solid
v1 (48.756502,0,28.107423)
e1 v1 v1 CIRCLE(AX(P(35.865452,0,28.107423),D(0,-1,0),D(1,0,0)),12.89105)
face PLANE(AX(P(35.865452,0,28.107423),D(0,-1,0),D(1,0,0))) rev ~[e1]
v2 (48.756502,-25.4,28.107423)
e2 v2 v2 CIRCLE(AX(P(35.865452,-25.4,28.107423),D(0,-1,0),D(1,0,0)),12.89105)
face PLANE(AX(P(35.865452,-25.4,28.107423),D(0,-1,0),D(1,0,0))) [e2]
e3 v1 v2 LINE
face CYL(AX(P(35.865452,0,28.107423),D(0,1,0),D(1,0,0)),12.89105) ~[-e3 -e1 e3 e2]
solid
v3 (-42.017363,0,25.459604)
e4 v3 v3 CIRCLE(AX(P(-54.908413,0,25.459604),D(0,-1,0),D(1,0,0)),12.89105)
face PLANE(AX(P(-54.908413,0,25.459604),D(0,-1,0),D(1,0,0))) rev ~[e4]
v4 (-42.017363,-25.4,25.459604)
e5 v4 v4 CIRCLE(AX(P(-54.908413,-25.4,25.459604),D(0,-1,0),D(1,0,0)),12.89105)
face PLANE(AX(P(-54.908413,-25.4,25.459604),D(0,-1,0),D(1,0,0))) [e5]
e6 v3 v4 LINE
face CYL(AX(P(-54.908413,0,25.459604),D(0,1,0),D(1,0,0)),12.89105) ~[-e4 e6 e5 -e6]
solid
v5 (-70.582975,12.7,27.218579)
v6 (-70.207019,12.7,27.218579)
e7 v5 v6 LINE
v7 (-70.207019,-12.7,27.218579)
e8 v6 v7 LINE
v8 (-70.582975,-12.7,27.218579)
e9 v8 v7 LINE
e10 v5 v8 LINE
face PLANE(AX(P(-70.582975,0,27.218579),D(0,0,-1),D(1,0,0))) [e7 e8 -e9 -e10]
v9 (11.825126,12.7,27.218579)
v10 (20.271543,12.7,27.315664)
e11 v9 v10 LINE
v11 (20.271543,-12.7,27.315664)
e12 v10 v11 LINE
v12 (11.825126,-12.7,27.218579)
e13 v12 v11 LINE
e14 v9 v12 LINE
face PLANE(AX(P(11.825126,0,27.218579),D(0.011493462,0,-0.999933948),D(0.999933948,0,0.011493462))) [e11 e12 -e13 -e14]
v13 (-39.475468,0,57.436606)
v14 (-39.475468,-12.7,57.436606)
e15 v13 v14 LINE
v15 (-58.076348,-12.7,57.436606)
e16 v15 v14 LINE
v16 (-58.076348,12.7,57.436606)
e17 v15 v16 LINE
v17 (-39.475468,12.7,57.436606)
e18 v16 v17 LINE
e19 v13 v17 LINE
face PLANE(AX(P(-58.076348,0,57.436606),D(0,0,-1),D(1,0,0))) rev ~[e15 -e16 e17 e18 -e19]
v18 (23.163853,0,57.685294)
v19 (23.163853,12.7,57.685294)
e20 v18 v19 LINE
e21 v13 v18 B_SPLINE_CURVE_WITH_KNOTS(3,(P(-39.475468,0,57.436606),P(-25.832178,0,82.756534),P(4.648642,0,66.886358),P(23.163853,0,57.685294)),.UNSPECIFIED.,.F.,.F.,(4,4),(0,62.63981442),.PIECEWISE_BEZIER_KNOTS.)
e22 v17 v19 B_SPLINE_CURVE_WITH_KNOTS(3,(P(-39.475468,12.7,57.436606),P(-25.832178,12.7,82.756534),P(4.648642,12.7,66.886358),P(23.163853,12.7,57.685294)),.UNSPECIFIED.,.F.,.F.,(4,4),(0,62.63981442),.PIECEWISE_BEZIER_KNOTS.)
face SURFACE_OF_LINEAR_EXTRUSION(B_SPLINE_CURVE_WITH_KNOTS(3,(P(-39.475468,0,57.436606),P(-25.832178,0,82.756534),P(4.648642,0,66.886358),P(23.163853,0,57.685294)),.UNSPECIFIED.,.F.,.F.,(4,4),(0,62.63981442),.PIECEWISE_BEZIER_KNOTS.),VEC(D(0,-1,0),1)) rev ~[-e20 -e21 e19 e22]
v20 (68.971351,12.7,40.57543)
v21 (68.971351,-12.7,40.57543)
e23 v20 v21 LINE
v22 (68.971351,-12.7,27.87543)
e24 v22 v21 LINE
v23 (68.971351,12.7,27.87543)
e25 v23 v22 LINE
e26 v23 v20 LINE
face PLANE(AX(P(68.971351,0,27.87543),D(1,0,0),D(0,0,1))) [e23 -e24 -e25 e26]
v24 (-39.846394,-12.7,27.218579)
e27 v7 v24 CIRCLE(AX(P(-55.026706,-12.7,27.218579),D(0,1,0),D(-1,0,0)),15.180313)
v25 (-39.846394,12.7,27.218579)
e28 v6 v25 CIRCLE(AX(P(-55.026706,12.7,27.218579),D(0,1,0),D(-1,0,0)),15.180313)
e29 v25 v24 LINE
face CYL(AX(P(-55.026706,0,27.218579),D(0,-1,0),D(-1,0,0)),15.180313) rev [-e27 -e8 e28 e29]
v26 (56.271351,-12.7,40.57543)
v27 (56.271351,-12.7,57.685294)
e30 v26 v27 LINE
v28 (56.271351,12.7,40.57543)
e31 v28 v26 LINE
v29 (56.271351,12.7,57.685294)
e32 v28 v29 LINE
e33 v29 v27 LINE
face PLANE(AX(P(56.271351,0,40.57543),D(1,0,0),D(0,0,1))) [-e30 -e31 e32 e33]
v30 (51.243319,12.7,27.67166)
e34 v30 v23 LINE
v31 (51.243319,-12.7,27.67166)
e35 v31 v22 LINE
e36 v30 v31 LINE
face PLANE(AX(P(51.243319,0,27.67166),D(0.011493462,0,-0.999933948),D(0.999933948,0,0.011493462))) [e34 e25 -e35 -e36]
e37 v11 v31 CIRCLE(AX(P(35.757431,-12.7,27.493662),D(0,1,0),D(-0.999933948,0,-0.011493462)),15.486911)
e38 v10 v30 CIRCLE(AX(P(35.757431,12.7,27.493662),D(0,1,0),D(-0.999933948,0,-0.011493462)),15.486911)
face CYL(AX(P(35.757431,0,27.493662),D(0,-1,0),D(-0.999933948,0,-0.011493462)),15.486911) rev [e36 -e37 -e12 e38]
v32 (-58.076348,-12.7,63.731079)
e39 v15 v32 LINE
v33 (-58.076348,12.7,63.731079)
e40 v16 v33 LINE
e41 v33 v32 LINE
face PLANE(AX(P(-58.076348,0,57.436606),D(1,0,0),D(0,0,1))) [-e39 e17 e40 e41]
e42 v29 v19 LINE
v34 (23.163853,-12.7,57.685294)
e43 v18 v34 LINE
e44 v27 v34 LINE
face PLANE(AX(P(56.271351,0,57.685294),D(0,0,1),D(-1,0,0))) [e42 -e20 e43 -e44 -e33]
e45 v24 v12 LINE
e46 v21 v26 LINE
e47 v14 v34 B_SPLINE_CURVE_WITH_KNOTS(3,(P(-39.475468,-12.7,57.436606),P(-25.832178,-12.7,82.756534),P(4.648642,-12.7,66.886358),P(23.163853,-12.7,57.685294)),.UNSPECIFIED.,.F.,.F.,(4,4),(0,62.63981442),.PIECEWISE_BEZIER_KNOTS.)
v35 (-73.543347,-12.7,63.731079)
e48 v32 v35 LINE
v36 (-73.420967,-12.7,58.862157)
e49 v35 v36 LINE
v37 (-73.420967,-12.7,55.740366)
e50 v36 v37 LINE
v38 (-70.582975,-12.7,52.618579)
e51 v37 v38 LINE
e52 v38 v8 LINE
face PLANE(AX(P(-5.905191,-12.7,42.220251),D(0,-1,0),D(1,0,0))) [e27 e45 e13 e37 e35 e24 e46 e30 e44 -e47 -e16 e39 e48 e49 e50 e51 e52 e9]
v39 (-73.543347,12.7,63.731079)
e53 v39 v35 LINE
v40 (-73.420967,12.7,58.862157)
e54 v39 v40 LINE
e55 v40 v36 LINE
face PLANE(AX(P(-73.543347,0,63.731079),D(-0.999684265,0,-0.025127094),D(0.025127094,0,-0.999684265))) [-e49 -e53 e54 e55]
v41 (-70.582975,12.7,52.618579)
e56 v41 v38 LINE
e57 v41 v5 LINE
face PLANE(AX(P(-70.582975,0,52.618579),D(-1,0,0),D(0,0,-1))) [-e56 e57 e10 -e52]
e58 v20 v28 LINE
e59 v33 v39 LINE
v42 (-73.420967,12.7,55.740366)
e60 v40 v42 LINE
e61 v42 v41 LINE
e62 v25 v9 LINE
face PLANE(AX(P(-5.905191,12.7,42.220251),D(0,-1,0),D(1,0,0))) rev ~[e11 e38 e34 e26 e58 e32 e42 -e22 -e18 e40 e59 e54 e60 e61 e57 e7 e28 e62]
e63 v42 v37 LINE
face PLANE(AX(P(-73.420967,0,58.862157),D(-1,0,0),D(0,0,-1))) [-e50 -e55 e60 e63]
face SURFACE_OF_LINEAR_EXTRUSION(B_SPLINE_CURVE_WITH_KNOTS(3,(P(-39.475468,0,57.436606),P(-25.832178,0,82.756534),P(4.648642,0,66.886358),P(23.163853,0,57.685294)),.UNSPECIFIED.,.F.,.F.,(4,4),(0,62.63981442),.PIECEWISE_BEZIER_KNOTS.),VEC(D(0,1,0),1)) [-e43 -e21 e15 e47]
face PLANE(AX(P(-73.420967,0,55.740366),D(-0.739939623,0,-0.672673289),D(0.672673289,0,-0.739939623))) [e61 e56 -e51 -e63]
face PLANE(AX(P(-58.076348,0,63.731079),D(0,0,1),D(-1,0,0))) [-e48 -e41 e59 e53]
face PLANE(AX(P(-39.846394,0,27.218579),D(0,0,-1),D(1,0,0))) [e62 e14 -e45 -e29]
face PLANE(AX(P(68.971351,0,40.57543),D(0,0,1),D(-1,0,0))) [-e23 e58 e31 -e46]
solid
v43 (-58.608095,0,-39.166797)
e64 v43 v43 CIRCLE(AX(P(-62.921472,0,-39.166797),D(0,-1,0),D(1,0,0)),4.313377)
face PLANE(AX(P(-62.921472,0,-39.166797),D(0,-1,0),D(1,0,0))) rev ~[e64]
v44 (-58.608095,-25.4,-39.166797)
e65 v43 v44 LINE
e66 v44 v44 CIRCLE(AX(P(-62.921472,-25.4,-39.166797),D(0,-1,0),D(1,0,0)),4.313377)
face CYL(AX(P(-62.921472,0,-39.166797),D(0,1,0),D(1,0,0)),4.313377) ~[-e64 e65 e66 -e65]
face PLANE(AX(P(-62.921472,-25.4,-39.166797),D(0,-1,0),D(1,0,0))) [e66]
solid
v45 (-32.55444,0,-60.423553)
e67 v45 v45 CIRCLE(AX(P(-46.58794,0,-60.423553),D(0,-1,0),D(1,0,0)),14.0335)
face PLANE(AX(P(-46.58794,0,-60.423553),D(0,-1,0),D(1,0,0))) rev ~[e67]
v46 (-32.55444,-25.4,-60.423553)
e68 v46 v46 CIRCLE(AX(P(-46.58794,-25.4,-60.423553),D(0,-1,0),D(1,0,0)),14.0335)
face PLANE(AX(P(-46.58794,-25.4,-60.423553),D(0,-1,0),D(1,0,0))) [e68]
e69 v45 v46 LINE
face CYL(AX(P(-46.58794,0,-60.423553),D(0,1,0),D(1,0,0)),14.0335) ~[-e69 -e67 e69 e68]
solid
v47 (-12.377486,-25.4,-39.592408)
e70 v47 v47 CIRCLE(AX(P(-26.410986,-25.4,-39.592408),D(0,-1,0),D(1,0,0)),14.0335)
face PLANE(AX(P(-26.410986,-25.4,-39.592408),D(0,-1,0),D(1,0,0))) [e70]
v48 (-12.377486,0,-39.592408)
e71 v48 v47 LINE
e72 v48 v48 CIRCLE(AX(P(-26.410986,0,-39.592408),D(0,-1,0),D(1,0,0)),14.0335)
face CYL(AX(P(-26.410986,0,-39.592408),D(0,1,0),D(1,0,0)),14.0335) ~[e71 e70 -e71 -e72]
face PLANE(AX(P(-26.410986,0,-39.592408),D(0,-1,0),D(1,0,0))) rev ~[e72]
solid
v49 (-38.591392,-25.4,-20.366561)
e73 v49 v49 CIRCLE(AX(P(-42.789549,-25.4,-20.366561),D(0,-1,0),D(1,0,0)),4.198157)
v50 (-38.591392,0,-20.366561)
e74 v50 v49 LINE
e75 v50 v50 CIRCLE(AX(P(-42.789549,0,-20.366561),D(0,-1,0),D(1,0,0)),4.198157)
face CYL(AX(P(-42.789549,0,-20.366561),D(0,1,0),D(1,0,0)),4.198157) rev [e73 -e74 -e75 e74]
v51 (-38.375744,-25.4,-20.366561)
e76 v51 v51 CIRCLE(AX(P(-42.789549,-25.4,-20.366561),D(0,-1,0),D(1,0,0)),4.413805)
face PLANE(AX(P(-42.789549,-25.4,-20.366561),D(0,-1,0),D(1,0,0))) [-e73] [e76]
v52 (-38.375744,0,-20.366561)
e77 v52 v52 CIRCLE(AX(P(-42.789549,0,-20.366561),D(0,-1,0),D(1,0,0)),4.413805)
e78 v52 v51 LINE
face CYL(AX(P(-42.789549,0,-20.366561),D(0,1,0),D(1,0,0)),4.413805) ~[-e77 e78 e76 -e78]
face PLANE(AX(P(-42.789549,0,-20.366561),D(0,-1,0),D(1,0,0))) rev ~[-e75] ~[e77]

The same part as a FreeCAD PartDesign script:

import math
import FreeCAD as App
import Part
import Sketcher
Q = App.Units.Quantity

doc = App.newDocument("Part")
body = doc.addObject("PartDesign::Body", "Body")

sketch1 = body.newObject("Sketcher::SketchObject", "Sketch")
sketch1.AttachmentSupport = (doc.getObject("XZ_Plane"), [""])
sketch1.MapMode = "FlatFace"
sketch1.addGeometry([
    Part.LineSegment(App.Vector(-58.076348, 57.436606, 0), App.Vector(-58.076348, 63.731079, 0)),
    Part.LineSegment(App.Vector(-58.076348, 63.731079, 0), App.Vector(-73.543347, 63.731079, 0)),
    Part.LineSegment(App.Vector(-73.543347, 63.731079, 0), App.Vector(-73.420967, 58.862157, 0)),
    Part.LineSegment(App.Vector(-73.420967, 58.862157, 0), App.Vector(-73.420967, 55.740366, 0)),
    Part.LineSegment(App.Vector(-73.420967, 55.740366, 0), App.Vector(-70.582975, 52.618579, 0)),
    Part.LineSegment(App.Vector(-70.582975, 52.618579, 0), App.Vector(-70.582975, 27.218579, 0)),
    Part.LineSegment(App.Vector(-70.582975, 27.218579, 0), App.Vector(-70.207019, 27.218579, 0)),
    Part.ArcOfCircle(Part.Circle(App.Vector(-55.026706, 27.218579, 0), App.Vector(0, 0, 1), 15.180313), math.radians(0), math.radians(180)),
    Part.LineSegment(App.Vector(-39.846394, 27.218579, 0), App.Vector(11.825126, 27.218579, 0)),
    Part.LineSegment(App.Vector(11.825126, 27.218579, 0), App.Vector(20.271543, 27.315664, 0)),
    Part.ArcOfCircle(Part.Circle(App.Vector(35.757431, 27.493662, 0), App.Vector(0, 0, 1), 15.486911), math.radians(0.658541), math.radians(180.658541)),
    Part.LineSegment(App.Vector(51.243319, 27.67166, 0), App.Vector(68.971351, 27.87543, 0)),
    Part.LineSegment(App.Vector(68.971351, 27.87543, 0), App.Vector(68.971351, 40.57543, 0)),
    Part.LineSegment(App.Vector(68.971351, 40.57543, 0), App.Vector(56.271351, 40.57543, 0)),
    Part.LineSegment(App.Vector(56.271351, 40.57543, 0), App.Vector(56.271351, 57.685294, 0)),
    Part.LineSegment(App.Vector(56.271351, 57.685294, 0), App.Vector(23.163853, 57.685294, 0)),
    Part.BSplineCurve([App.Vector(-39.475468, 57.436606, 0), App.Vector(-25.832178, 82.756534, 0), App.Vector(4.648642, 66.886358, 0), App.Vector(23.163853, 57.685294, 0)], [4, 4], [0, 62.63981442], False, 3, [1, 1, 1, 1], False),
    Part.LineSegment(App.Vector(-39.475468, 57.436606, 0), App.Vector(-58.076348, 57.436606, 0)),
], False)
sketch1.addConstraint([
    Sketcher.Constraint("Block", 16),
    Sketcher.Constraint("Coincident", 0, 2, 1, 1),
    Sketcher.Constraint("Coincident", 1, 2, 2, 1),
    Sketcher.Constraint("Coincident", 2, 2, 3, 1),
    Sketcher.Constraint("Coincident", 3, 2, 4, 1),
    Sketcher.Constraint("Coincident", 4, 2, 5, 1),
    Sketcher.Constraint("Coincident", 5, 2, 6, 1),
    Sketcher.Constraint("Coincident", 6, 2, 7, 2),
    Sketcher.Constraint("Coincident", 7, 1, 8, 1),
    Sketcher.Constraint("Coincident", 8, 2, 9, 1),
    Sketcher.Constraint("Coincident", 9, 2, 10, 2),
    Sketcher.Constraint("Coincident", 10, 1, 11, 1),
    Sketcher.Constraint("Coincident", 11, 2, 12, 1),
    Sketcher.Constraint("Coincident", 12, 2, 13, 1),
    Sketcher.Constraint("Coincident", 13, 2, 14, 1),
    Sketcher.Constraint("Coincident", 14, 2, 15, 1),
    Sketcher.Constraint("Coincident", 15, 2, 16, 2),
    Sketcher.Constraint("Coincident", 16, 1, 17, 1),
    Sketcher.Constraint("Coincident", 17, 2, 0, 1),
    Sketcher.Constraint("Vertical", 0),
    Sketcher.Constraint("Horizontal", 1),
    Sketcher.Constraint("Vertical", 3),
    Sketcher.Constraint("Vertical", 5),
    Sketcher.Constraint("Horizontal", 6),
    Sketcher.Constraint("Horizontal", 8),
    Sketcher.Constraint("Vertical", 12),
    Sketcher.Constraint("Horizontal", 13),
    Sketcher.Constraint("Vertical", 14),
    Sketcher.Constraint("Horizontal", 15),
    Sketcher.Constraint("Horizontal", 17),
    Sketcher.Constraint("Parallel", 9, 11),
    Sketcher.Constraint("Horizontal", 7, 3, 5, 2),
    Sketcher.Constraint("Horizontal", 6, 2, 7, 1),
    Sketcher.Constraint("Equal", 13, 12),
    Sketcher.Constraint("DistanceY", 5, 2, 5, 1, Q("1 in")),
    Sketcher.Constraint("DistanceX", 13, 2, 13, 1, Q("0.5 in")),
    Sketcher.Constraint("Distance", 11, Q("0.6980001 in")),
    Sketcher.Constraint("Radius", 10, Q("15.486911 mm")),
    Sketcher.Constraint("DistanceY", 7, 3, 0, 2, Q("1.4375 in")),
    Sketcher.Constraint("DistanceX", 1, 2, 1, 1, Q("15.466999 mm")),
    Sketcher.Constraint("Radius", 7, Q("15.180313 mm")),
    Sketcher.Constraint("DistanceX", 8, 1, 8, 2, Q("51.671519 mm")),
    Sketcher.Constraint("DistanceX", 17, 2, 17, 1, Q("18.600881 mm")),
    Sketcher.Constraint("DistanceY", 3, 2, 3, 1, Q("3.121791 mm")),
    Sketcher.Constraint("DistanceY", 9, 2, 10, 3, Q("0.177998 mm")),
    Sketcher.Constraint("DistanceY", 10, 3, 10, 1, Q("0.177998 mm")),
    Sketcher.Constraint("Distance", 2, Q("4.87046 mm")),
    Sketcher.Constraint("DistanceX", 6, 1, 6, 2, Q("0.375956 mm")),
    Sketcher.Constraint("DistanceX", 15, 2, 15, 1, Q("33.107498 mm")),
    Sketcher.Constraint("DistanceY", 0, 1, 0, 2, Q("6.294473 mm")),
    Sketcher.Constraint("DistanceY", 14, 1, 14, 2, Q("17.109864 mm")),
    Sketcher.Constraint("DistanceX", 6, 2, -1, 1, Q("70.207019 mm")),
    Sketcher.Constraint("DistanceX", 1, 2, 2, 2, Q("0.122381 mm")),
])
pad1 = body.newObject("PartDesign::Pad", "Pad")
pad1.Profile = sketch1
pad1.Length = Q("1 in")
pad1.Midplane = True
body2 = doc.addObject("PartDesign::Body", "Body001")

sketch2 = body2.newObject("Sketcher::SketchObject", "Sketch001")
sketch2.AttachmentSupport = (doc.getObject("XZ_Plane001"), [""])
sketch2.MapMode = "FlatFace"
sketch2.addGeometry(Part.Circle(App.Vector(-54.908413, 25.459604, 0), App.Vector(0, 0, 1), 12.89105), False)
sketch2.addConstraint([
    Sketcher.Constraint("Diameter", 0, Q("25.7821 mm")),
    Sketcher.Constraint("DistanceX", 0, 3, -1, 1, Q("54.908413 mm")),
    Sketcher.Constraint("DistanceY", -1, 1, 0, 3, Q("25.459604 mm")),
])
pad2 = body2.newObject("PartDesign::Pad", "Pad001")
pad2.Profile = sketch2
pad2.Length = Q("1 in")
body3 = doc.addObject("PartDesign::Body", "Body002")

sketch3 = body3.newObject("Sketcher::SketchObject", "Sketch002")
sketch3.AttachmentSupport = (doc.getObject("XZ_Plane002"), [""])
sketch3.MapMode = "FlatFace"
sketch3.addGeometry(Part.Circle(App.Vector(35.865452, 28.107423, 0), App.Vector(0, 0, 1), 12.89105), False)
sketch3.addConstraint([
    Sketcher.Constraint("Diameter", 0, Q("25.7821 mm")),
    Sketcher.Constraint("DistanceX", -1, 1, 0, 3, Q("35.865452 mm")),
    Sketcher.Constraint("DistanceY", -1, 1, 0, 3, Q("28.107423 mm")),
])
pad3 = body3.newObject("PartDesign::Pad", "Pad002")
pad3.Profile = sketch3
pad3.Length = Q("1 in")
body4 = doc.addObject("PartDesign::Body", "Body003")

sketch4 = body4.newObject("Sketcher::SketchObject", "Sketch003")
sketch4.AttachmentSupport = (doc.getObject("XZ_Plane003"), [""])
sketch4.MapMode = "FlatFace"
sketch4.addGeometry([
    Part.Circle(App.Vector(-42.789549, -20.366561, 0), App.Vector(0, 0, 1), 4.413805),
    Part.Circle(App.Vector(-42.789549, -20.366561, 0), App.Vector(0, 0, 1), 4.198157),
], False)
sketch4.addConstraint([
    Sketcher.Constraint("Coincident", 1, 3, 0, 3),
    Sketcher.Constraint("Diameter", 0, Q("8.82761 mm")),
    Sketcher.Constraint("Diameter", 1, Q("8.396314 mm")),
    Sketcher.Constraint("DistanceX", 0, 3, -1, 1, Q("42.789549 mm")),
    Sketcher.Constraint("DistanceY", 0, 3, -1, 1, Q("20.366561 mm")),
])
pad4 = body4.newObject("PartDesign::Pad", "Pad003")
pad4.Profile = sketch4
pad4.Length = Q("1 in")
body5 = doc.addObject("PartDesign::Body", "Body004")

sketch5 = body5.newObject("Sketcher::SketchObject", "Sketch004")
sketch5.AttachmentSupport = (doc.getObject("XZ_Plane004"), [""])
sketch5.MapMode = "FlatFace"
sketch5.addGeometry(Part.Circle(App.Vector(-62.921472, -39.166797, 0), App.Vector(0, 0, 1), 4.313377), False)
sketch5.addConstraint([
    Sketcher.Constraint("DistanceY", 0, 3, -1, 1, Q("1.5419999 in")),
    Sketcher.Constraint("Diameter", 0, Q("8.626754 mm")),
    Sketcher.Constraint("DistanceX", 0, 3, -1, 1, Q("62.921472 mm")),
])
pad5 = body5.newObject("PartDesign::Pad", "Pad004")
pad5.Profile = sketch5
pad5.Length = Q("1 in")
body6 = doc.addObject("PartDesign::Body", "Body005")

sketch6 = body6.newObject("Sketcher::SketchObject", "Sketch005")
sketch6.AttachmentSupport = (doc.getObject("XZ_Plane005"), [""])
sketch6.MapMode = "FlatFace"
sketch6.addGeometry(Part.Circle(App.Vector(-46.58794, -60.423553, 0), App.Vector(0, 0, 1), 14.0335), False)
sketch6.addConstraint([
    Sketcher.Constraint("Diameter", 0, Q("1.105 in")),
    Sketcher.Constraint("DistanceX", 0, 3, -1, 1, Q("46.58794 mm")),
    Sketcher.Constraint("DistanceY", 0, 3, -1, 1, Q("60.423553 mm")),
])
pad6 = body6.newObject("PartDesign::Pad", "Pad005")
pad6.Profile = sketch6
pad6.Length = Q("1 in")
body7 = doc.addObject("PartDesign::Body", "Body006")

sketch7 = body7.newObject("Sketcher::SketchObject", "Sketch006")
sketch7.AttachmentSupport = (doc.getObject("XZ_Plane006"), [""])
sketch7.MapMode = "FlatFace"
sketch7.addGeometry(Part.Circle(App.Vector(-26.410986, -39.592408, 0), App.Vector(0, 0, 1), 14.0335), False)
sketch7.addConstraint([
    Sketcher.Constraint("Diameter", 0, Q("1.105 in")),
    Sketcher.Constraint("DistanceX", 0, 3, -1, 1, Q("26.410986 mm")),
    Sketcher.Constraint("DistanceY", 0, 3, -1, 1, Q("39.592408 mm")),
])
pad7 = body7.newObject("PartDesign::Pad", "Pad006")
pad7.Profile = sketch7
pad7.Length = Q("1 in")

doc.recompute()
